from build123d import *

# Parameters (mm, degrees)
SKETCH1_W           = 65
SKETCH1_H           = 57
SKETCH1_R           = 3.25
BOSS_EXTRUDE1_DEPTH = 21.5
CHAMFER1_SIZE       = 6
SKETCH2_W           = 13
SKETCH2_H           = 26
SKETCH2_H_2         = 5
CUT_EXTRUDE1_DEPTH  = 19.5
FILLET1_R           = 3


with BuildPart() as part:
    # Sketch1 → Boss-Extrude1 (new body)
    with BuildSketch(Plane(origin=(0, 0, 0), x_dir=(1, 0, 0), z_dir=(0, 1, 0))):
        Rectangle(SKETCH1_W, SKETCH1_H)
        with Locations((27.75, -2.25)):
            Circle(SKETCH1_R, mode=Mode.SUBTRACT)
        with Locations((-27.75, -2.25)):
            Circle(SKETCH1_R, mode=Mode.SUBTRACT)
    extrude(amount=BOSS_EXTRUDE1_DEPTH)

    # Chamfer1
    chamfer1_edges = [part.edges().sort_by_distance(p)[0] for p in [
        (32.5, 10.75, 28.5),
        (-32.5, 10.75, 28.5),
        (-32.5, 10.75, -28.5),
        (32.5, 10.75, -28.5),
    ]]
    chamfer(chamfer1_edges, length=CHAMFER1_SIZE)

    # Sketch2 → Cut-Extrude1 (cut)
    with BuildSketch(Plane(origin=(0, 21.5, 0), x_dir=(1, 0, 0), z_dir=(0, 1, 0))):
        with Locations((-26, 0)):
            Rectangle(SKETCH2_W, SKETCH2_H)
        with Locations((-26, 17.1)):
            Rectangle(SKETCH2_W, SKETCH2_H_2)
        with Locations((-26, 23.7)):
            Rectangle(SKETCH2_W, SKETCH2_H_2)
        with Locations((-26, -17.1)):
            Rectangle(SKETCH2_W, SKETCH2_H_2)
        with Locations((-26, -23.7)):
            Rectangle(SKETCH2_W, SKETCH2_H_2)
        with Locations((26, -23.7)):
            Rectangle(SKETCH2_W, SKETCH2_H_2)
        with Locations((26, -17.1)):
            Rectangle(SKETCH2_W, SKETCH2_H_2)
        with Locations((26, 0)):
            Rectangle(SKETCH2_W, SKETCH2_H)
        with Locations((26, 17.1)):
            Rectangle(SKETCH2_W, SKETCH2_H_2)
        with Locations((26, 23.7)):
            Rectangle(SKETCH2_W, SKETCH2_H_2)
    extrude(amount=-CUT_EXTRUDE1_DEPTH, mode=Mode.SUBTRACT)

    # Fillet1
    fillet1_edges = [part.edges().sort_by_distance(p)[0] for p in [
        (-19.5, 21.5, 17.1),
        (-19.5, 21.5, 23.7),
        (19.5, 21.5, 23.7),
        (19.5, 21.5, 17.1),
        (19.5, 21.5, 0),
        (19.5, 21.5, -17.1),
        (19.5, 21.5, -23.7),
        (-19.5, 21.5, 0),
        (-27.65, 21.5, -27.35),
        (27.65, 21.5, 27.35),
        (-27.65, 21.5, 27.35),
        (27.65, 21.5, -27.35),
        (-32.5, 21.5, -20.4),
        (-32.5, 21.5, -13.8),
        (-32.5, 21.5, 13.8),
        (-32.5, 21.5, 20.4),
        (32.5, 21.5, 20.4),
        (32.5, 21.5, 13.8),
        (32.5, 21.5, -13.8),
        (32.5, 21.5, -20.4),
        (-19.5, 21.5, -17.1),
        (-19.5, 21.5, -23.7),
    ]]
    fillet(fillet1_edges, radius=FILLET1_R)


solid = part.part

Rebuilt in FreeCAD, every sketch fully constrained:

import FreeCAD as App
import Part
import Sketcher

V = App.Vector


def edges_at(feature, points):
    """Names of the edges that pass closest to the given points."""
    edges = feature.Shape.Edges
    near = lambda p: min(range(len(edges)), key=lambda i: edges[i].distToShape(Part.Vertex(*p))[0])
    return sorted({f"Edge{near(p) + 1}" for p in points})

doc = App.newDocument("Part")
body = doc.addObject("PartDesign::Body", "Body")

sketch1 = body.newObject("Sketcher::SketchObject", "Sketch")
sketch1.AttachmentSupport = (doc.getObject("XZ_Plane"), [""])
sketch1.MapMode = "FlatFace"
sketch1.addGeometry([
    Part.LineSegment(V(-32.5, -28.5, 0), V(-32.5, 28.5, 0)),
    Part.LineSegment(V(-32.5, 28.5, 0), V(32.5, 28.5, 0)),
    Part.LineSegment(V(32.5, 28.5, 0), V(32.5, -28.5, 0)),
    Part.LineSegment(V(32.5, -28.5, 0), V(-32.5, -28.5, 0)),
    Part.Circle(V(-27.8, 2.2, 0), V(0, 0, 1), 3.2),
    Part.Circle(V(27.8, 2.2, 0), V(0, 0, 1), 3.2),
], False)
sketch1.addConstraint([
    Sketcher.Constraint("Coincident", 0, 2, 1, 1),
    Sketcher.Constraint("Coincident", 1, 2, 2, 1),
    Sketcher.Constraint("Coincident", 2, 2, 3, 1),
    Sketcher.Constraint("Coincident", 3, 2, 0, 1),
    Sketcher.Constraint("Vertical", 0),
    Sketcher.Constraint("Horizontal", 1),
    Sketcher.Constraint("Vertical", 2),
    Sketcher.Constraint("Horizontal", 3),
    Sketcher.Constraint("Equal", 4, 5),
    Sketcher.Constraint("Symmetric", 0, 2, 2, 2, -1, 1),
    Sketcher.Constraint("Symmetric", 4, 3, 5, 3, -2),
    Sketcher.Constraint("Diameter", 4, 6.5),
    Sketcher.Constraint("DistanceX", 1, 1, 1, 2, 65.0),
    Sketcher.Constraint("DistanceY", 0, 1, 0, 2, 57.0),
    Sketcher.Constraint("DistanceX", 4, 3, 5, 3, 55.5),
    Sketcher.Constraint("DistanceY", -1, 1, 4, 3, 2.25),
])
pad1 = body.newObject("PartDesign::Pad", "Pad")
pad1.Profile = sketch1
pad1.Length = 21.5
pad1.Reversed = True
doc.recompute()

chamfer = body.newObject("PartDesign::Chamfer", "Chamfer")
chamfer.Base = (pad1, edges_at(pad1, [
    (32.5, 10.75, 28.5),
    (-32.5, 10.75, 28.5),
    (-32.5, 10.75, -28.5),
    (32.5, 10.75, -28.5),
]))
chamfer.Size = 6

sketch2 = body.newObject("Sketcher::SketchObject", "Sketch001")
sketch2.AttachmentSupport = (doc.getObject("XZ_Plane"), [""])
sketch2.MapMode = "FlatFace"
sketch2.AttachmentOffset = App.Placement(V(0, 0, -21.5), App.Rotation())
sketch2.addGeometry([
    Part.LineSegment(V(-32, -13, 0), V(-32, 13, 0)),
    Part.LineSegment(V(-32, 13, 0), V(-20, 13, 0)),
    Part.LineSegment(V(-20, 13, 0), V(-20, -13, 0)),
    Part.LineSegment(V(-20, -13, 0), V(-32, -13, 0)),
    Part.LineSegment(V(-32, -20, 0), V(-32, -15, 0)),
    Part.LineSegment(V(-32, -15, 0), V(-20, -15, 0)),
    Part.LineSegment(V(-20, -15, 0), V(-20, -20, 0)),
    Part.LineSegment(V(-20, -20, 0), V(-32, -20, 0)),
    Part.LineSegment(V(-32, -26, 0), V(-32, -21, 0)),
    Part.LineSegment(V(-32, -21, 0), V(-20, -21, 0)),
    Part.LineSegment(V(-20, -21, 0), V(-20, -26, 0)),
    Part.LineSegment(V(-20, -26, 0), V(-32, -26, 0)),
    Part.LineSegment(V(-32, 15, 0), V(-32, 20, 0)),
    Part.LineSegment(V(-32, 20, 0), V(-20, 20, 0)),
    Part.LineSegment(V(-20, 20, 0), V(-20, 15, 0)),
    Part.LineSegment(V(-20, 15, 0), V(-32, 15, 0)),
    Part.LineSegment(V(-32, 21, 0), V(-32, 26, 0)),
    Part.LineSegment(V(-32, 26, 0), V(-20, 26, 0)),
    Part.LineSegment(V(-20, 26, 0), V(-20, 21, 0)),
    Part.LineSegment(V(-20, 21, 0), V(-32, 21, 0)),
    Part.LineSegment(V(20, 21, 0), V(20, 26, 0)),
    Part.LineSegment(V(20, 26, 0), V(32, 26, 0)),
    Part.LineSegment(V(32, 26, 0), V(32, 21, 0)),
    Part.LineSegment(V(32, 21, 0), V(20, 21, 0)),
    Part.LineSegment(V(20, 15, 0), V(20, 20, 0)),
    Part.LineSegment(V(20, 20, 0), V(32, 20, 0)),
    Part.LineSegment(V(32, 20, 0), V(32, 15, 0)),
    Part.LineSegment(V(32, 15, 0), V(20, 15, 0)),
    Part.LineSegment(V(20, -13, 0), V(20, 13, 0)),
    Part.LineSegment(V(20, 13, 0), V(32, 13, 0)),
    Part.LineSegment(V(32, 13, 0), V(32, -13, 0)),
    Part.LineSegment(V(32, -13, 0), V(20, -13, 0)),
    Part.LineSegment(V(20, -20, 0), V(20, -15, 0)),
    Part.LineSegment(V(20, -15, 0), V(32, -15, 0)),
    Part.LineSegment(V(32, -15, 0), V(32, -20, 0)),
    Part.LineSegment(V(32, -20, 0), V(20, -20, 0)),
    Part.LineSegment(V(20, -26, 0), V(20, -21, 0)),
    Part.LineSegment(V(20, -21, 0), V(32, -21, 0)),
    Part.LineSegment(V(32, -21, 0), V(32, -26, 0)),
    Part.LineSegment(V(32, -26, 0), V(20, -26, 0)),
], False)
sketch2.addConstraint([
    Sketcher.Constraint("Coincident", 0, 2, 1, 1),
    Sketcher.Constraint("Coincident", 1, 2, 2, 1),
    Sketcher.Constraint("Coincident", 2, 2, 3, 1),
    Sketcher.Constraint("Coincident", 3, 2, 0, 1),
    Sketcher.Constraint("Coincident", 4, 2, 5, 1),
    Sketcher.Constraint("Coincident", 5, 2, 6, 1),
    Sketcher.Constraint("Coincident", 6, 2, 7, 1),
    Sketcher.Constraint("Coincident", 7, 2, 4, 1),
    Sketcher.Constraint("Coincident", 8, 2, 9, 1),
    Sketcher.Constraint("Coincident", 9, 2, 10, 1),
    Sketcher.Constraint("Coincident", 10, 2, 11, 1),
    Sketcher.Constraint("Coincident", 11, 2, 8, 1),
    Sketcher.Constraint("Coincident", 12, 2, 13, 1),
    Sketcher.Constraint("Coincident", 13, 2, 14, 1),
    Sketcher.Constraint("Coincident", 14, 2, 15, 1),
    Sketcher.Constraint("Coincident", 15, 2, 12, 1),
    Sketcher.Constraint("Coincident", 16, 2, 17, 1),
    Sketcher.Constraint("Coincident", 17, 2, 18, 1),
    Sketcher.Constraint("Coincident", 18, 2, 19, 1),
    Sketcher.Constraint("Coincident", 19, 2, 16, 1),
    Sketcher.Constraint("Coincident", 20, 2, 21, 1),
    Sketcher.Constraint("Coincident", 21, 2, 22, 1),
    Sketcher.Constraint("Coincident", 22, 2, 23, 1),
    Sketcher.Constraint("Coincident", 23, 2, 20, 1),
    Sketcher.Constraint("Coincident", 24, 2, 25, 1),
    Sketcher.Constraint("Coincident", 25, 2, 26, 1),
    Sketcher.Constraint("Coincident", 26, 2, 27, 1),
    Sketcher.Constraint("Coincident", 27, 2, 24, 1),
    Sketcher.Constraint("Coincident", 28, 2, 29, 1),
    Sketcher.Constraint("Coincident", 29, 2, 30, 1),
    Sketcher.Constraint("Coincident", 30, 2, 31, 1),
    Sketcher.Constraint("Coincident", 31, 2, 28, 1),
    Sketcher.Constraint("Coincident", 32, 2, 33, 1),
    Sketcher.Constraint("Coincident", 33, 2, 34, 1),
    Sketcher.Constraint("Coincident", 34, 2, 35, 1),
    Sketcher.Constraint("Coincident", 35, 2, 32, 1),
    Sketcher.Constraint("Coincident", 36, 2, 37, 1),
    Sketcher.Constraint("Coincident", 37, 2, 38, 1),
    Sketcher.Constraint("Coincident", 38, 2, 39, 1),
    Sketcher.Constraint("Coincident", 39, 2, 36, 1),
    Sketcher.Constraint("Vertical", 0),
    Sketcher.Constraint("Horizontal", 1),
    Sketcher.Constraint("Vertical", 2),
    Sketcher.Constraint("Horizontal", 3),
    Sketcher.Constraint("Vertical", 4),
    Sketcher.Constraint("Horizontal", 5),
    Sketcher.Constraint("Vertical", 6),
    Sketcher.Constraint("Horizontal", 7),
    Sketcher.Constraint("Vertical", 8),
    Sketcher.Constraint("Horizontal", 9),
    Sketcher.Constraint("Vertical", 10),
    Sketcher.Constraint("Horizontal", 11),
    Sketcher.Constraint("Vertical", 12),
    Sketcher.Constraint("Horizontal", 13),
    Sketcher.Constraint("Vertical", 14),
    Sketcher.Constraint("Horizontal", 15),
    Sketcher.Constraint("Vertical", 16),
    Sketcher.Constraint("Horizontal", 17),
    Sketcher.Constraint("Vertical", 18),
    Sketcher.Constraint("Horizontal", 19),
    Sketcher.Constraint("Vertical", 20),
    Sketcher.Constraint("Horizontal", 21),
    Sketcher.Constraint("Vertical", 22),
    Sketcher.Constraint("Horizontal", 23),
    Sketcher.Constraint("Vertical", 24),
    Sketcher.Constraint("Horizontal", 25),
    Sketcher.Constraint("Vertical", 26),
    Sketcher.Constraint("Horizontal", 27),
    Sketcher.Constraint("Vertical", 28),
    Sketcher.Constraint("Horizontal", 29),
    Sketcher.Constraint("Vertical", 30),
    Sketcher.Constraint("Horizontal", 31),
    Sketcher.Constraint("Vertical", 32),
    Sketcher.Constraint("Horizontal", 33),
    Sketcher.Constraint("Vertical", 34),
    Sketcher.Constraint("Horizontal", 35),
    Sketcher.Constraint("Vertical", 36),
    Sketcher.Constraint("Horizontal", 37),
    Sketcher.Constraint("Vertical", 38),
    Sketcher.Constraint("Horizontal", 39),
    Sketcher.Constraint("Symmetric", 10, 2, 20, 2, -1, 1),
    Sketcher.Constraint("Symmetric", 8, 2, 22, 2, -1, 1),
    Sketcher.Constraint("Symmetric", 6, 2, 24, 2, -1, 1),
    Sketcher.Constraint("Symmetric", 4, 2, 26, 2, -1, 1),
    Sketcher.Constraint("Symmetric", 2, 2, 28, 2, -1, 1),
    Sketcher.Constraint("Symmetric", 0, 2, 30, 2, -1, 1),
    Sketcher.Constraint("Symmetric", 14, 2, 32, 2, -1, 1),
    Sketcher.Constraint("Symmetric", 12, 2, 34, 2, -1, 1),
    Sketcher.Constraint("Symmetric", 18, 2, 36, 2, -1, 1),
    Sketcher.Constraint("Symmetric", 16, 2, 38, 2, -1, 1),
    Sketcher.Constraint("Symmetric", 17, 2, 20, 2, -2),
    Sketcher.Constraint("Symmetric", 19, 2, 22, 2, -2),
    Sketcher.Constraint("Symmetric", 13, 2, 24, 2, -2),
    Sketcher.Constraint("Symmetric", 15, 2, 26, 2, -2),
    Sketcher.Constraint("Horizontal", 1, 2, 28, 2),
    Sketcher.Constraint("Vertical", 3, 2, 4, 2),
    Sketcher.Constraint("Vertical", 2, 2, 5, 2),
    Sketcher.Constraint("Vertical", 7, 2, 8, 2),
    Sketcher.Constraint("Vertical", 6, 2, 9, 2),
    Sketcher.Constraint("Equal", 6, 8),
    Sketcher.Constraint("DistanceX", 1, 1, 1, 2, 13.0),
    Sketcher.Constraint("DistanceY", 0, 1, 0, 2, 26.0),
    Sketcher.Constraint("DistanceY", 4, 1, 4, 2, 5.0),
    Sketcher.Constraint("DistanceX", 17, 2, 20, 2, 39.0),
    Sketcher.Constraint("DistanceY", 4, 2, -1, 1, 14.6),
    Sketcher.Constraint("DistanceY", 8, 2, -1, 1, 21.2),
])
pocket1 = body.newObject("PartDesign::Pocket", "Pocket")
pocket1.Profile = sketch2
pocket1.Length = 19.5
pocket1.Reversed = True
doc.recompute()

fillet = body.newObject("PartDesign::Fillet", "Fillet")
fillet.Base = (pocket1, edges_at(pocket1, [
    (-19.5, 21.5, 17.1),
    (-19.5, 21.5, 23.7),
    (19.5, 21.5, 23.7),
    (19.5, 21.5, 17.1),
    (19.5, 21.5, 0),
    (19.5, 21.5, -17.1),
    (19.5, 21.5, -23.7),
    (-19.5, 21.5, 0),
    (-27.65, 21.5, -27.35),
    (27.65, 21.5, 27.35),
    (-27.65, 21.5, 27.35),
    (27.65, 21.5, -27.35),
    (-32.5, 21.5, -20.4),
    (-32.5, 21.5, -13.8),
    (-32.5, 21.5, 13.8),
    (-32.5, 21.5, 20.4),
    (32.5, 21.5, 20.4),
    (32.5, 21.5, 13.8),
    (32.5, 21.5, -13.8),
    (32.5, 21.5, -20.4),
    (-19.5, 21.5, -17.1),
    (-19.5, 21.5, -23.7),
]))
fillet.Radius = 3

doc.recompute()
